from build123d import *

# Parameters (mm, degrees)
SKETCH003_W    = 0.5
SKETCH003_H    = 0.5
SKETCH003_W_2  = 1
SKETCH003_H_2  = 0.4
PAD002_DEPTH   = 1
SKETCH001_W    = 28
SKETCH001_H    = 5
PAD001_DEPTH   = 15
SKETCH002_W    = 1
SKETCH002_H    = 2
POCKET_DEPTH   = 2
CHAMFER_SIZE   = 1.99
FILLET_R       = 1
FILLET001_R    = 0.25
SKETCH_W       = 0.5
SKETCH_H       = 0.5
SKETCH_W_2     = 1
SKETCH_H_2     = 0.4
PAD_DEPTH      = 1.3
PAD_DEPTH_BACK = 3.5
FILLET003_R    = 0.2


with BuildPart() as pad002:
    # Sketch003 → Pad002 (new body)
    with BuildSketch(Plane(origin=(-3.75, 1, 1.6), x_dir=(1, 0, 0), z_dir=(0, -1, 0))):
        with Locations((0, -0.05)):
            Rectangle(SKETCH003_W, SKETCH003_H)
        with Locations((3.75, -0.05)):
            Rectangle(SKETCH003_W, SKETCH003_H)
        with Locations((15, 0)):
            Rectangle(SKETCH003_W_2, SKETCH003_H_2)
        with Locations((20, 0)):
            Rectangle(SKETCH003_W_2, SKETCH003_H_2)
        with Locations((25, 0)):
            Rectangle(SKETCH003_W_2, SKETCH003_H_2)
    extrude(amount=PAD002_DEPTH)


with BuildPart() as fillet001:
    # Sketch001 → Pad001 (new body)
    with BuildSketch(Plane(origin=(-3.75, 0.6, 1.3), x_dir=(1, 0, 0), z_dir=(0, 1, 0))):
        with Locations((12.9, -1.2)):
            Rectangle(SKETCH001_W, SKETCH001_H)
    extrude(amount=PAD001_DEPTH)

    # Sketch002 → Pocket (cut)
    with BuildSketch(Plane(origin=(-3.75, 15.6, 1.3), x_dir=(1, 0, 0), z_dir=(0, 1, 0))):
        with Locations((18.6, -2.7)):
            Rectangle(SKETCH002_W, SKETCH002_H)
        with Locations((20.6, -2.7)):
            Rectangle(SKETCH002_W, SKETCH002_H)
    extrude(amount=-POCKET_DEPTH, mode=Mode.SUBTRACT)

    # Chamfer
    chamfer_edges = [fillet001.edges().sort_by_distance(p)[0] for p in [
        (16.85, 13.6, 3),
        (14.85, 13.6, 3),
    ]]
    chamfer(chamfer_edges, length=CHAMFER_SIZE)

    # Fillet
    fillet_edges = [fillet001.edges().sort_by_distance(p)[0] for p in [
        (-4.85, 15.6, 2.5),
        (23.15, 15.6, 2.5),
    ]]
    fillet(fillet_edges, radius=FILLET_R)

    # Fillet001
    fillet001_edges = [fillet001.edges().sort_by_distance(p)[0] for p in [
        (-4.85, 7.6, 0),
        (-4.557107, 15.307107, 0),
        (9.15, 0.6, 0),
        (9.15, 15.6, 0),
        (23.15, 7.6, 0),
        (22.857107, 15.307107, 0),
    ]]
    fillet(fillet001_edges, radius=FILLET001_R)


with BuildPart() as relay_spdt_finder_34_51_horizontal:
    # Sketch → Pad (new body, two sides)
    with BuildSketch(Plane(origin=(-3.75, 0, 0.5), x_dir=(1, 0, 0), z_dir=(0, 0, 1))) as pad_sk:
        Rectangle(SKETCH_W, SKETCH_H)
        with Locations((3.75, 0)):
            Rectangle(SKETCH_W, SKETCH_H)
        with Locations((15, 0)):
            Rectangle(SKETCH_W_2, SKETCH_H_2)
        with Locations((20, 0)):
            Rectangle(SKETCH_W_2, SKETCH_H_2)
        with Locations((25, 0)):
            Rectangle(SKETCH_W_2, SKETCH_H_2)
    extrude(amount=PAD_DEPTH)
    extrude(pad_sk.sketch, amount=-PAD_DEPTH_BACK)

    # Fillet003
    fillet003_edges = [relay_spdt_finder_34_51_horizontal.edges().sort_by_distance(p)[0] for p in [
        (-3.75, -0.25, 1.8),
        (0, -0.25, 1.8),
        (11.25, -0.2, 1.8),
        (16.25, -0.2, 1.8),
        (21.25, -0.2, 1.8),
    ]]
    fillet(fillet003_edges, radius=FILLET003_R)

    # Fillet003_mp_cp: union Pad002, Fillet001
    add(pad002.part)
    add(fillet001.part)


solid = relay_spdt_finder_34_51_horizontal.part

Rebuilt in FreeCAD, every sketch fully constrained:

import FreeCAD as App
import Part
import Sketcher


def edges_at(feature, points):
    """Names of the edges that pass closest to the given points."""
    edges = feature.Shape.Edges
    near = lambda p: min(range(len(edges)), key=lambda i: edges[i].distToShape(Part.Vertex(*p))[0])
    return sorted({f"Edge{near(p) + 1}" for p in points})

doc = App.newDocument("Part")
body = doc.addObject("PartDesign::Body", "Body")
body.AllowCompound = True

# Sketch on XZ plane
sketch1 = body.newObject("Sketcher::SketchObject", "Sketch")
sketch1.AttachmentSupport = (doc.getObject("XZ_Plane"), [""])
sketch1.MapMode = "FlatFace"
sketch1.AttachmentOffset = App.Placement(App.Vector(0, 0, -1), App.Rotation())
sketch1.addGeometry([
    Part.LineSegment(App.Vector(-4, 1.8, 0), App.Vector(-4, 1.3, 0)),  # 0
    Part.LineSegment(App.Vector(-4, 1.3, 0), App.Vector(-3.5, 1.3, 0)),  # 1
    Part.LineSegment(App.Vector(-3.5, 1.3, 0), App.Vector(-3.5, 1.8, 0)),  # 2
    Part.LineSegment(App.Vector(-3.5, 1.8, 0), App.Vector(-4, 1.8, 0)),  # 3
    Part.LineSegment(App.Vector(-0.25, 1.8, 0), App.Vector(-0.25, 1.3, 0)),  # 4
    Part.LineSegment(App.Vector(-0.25, 1.3, 0), App.Vector(0.25, 1.3, 0)),  # 5
    Part.LineSegment(App.Vector(0.25, 1.3, 0), App.Vector(0.25, 1.8, 0)),  # 6
    Part.LineSegment(App.Vector(0.25, 1.8, 0), App.Vector(-0.25, 1.8, 0)),  # 7
    Part.LineSegment(App.Vector(10.75, 1.8, 0), App.Vector(10.75, 1.4, 0)),  # 8
    Part.LineSegment(App.Vector(10.75, 1.4, 0), App.Vector(11.75, 1.4, 0)),  # 9
    Part.LineSegment(App.Vector(11.75, 1.4, 0), App.Vector(11.75, 1.8, 0)),  # 10
    Part.LineSegment(App.Vector(11.75, 1.8, 0), App.Vector(10.75, 1.8, 0)),  # 11
    Part.LineSegment(App.Vector(15.75, 1.8, 0), App.Vector(15.75, 1.4, 0)),  # 12
    Part.LineSegment(App.Vector(15.75, 1.4, 0), App.Vector(16.75, 1.4, 0)),  # 13
    Part.LineSegment(App.Vector(16.75, 1.4, 0), App.Vector(16.75, 1.8, 0)),  # 14
    Part.LineSegment(App.Vector(16.75, 1.8, 0), App.Vector(15.75, 1.8, 0)),  # 15
    Part.LineSegment(App.Vector(20.75, 1.8, 0), App.Vector(20.75, 1.4, 0)),  # 16
    Part.LineSegment(App.Vector(20.75, 1.4, 0), App.Vector(21.75, 1.4, 0)),  # 17
    Part.LineSegment(App.Vector(21.75, 1.4, 0), App.Vector(21.75, 1.8, 0)),  # 18
    Part.LineSegment(App.Vector(21.75, 1.8, 0), App.Vector(20.75, 1.8, 0)),  # 19
], False)
sketch1.addConstraint([
    Sketcher.Constraint("Coincident", 0, 2, 1, 1),
    Sketcher.Constraint("Coincident", 1, 2, 2, 1),
    Sketcher.Constraint("Coincident", 2, 2, 3, 1),
    Sketcher.Constraint("Coincident", 3, 2, 0, 1),
    Sketcher.Constraint("Coincident", 4, 2, 5, 1),
    Sketcher.Constraint("Coincident", 5, 2, 6, 1),
    Sketcher.Constraint("Coincident", 6, 2, 7, 1),
    Sketcher.Constraint("Coincident", 7, 2, 4, 1),
    Sketcher.Constraint("Coincident", 8, 2, 9, 1),
    Sketcher.Constraint("Coincident", 9, 2, 10, 1),
    Sketcher.Constraint("Coincident", 10, 2, 11, 1),
    Sketcher.Constraint("Coincident", 11, 2, 8, 1),
    Sketcher.Constraint("Coincident", 12, 2, 13, 1),
    Sketcher.Constraint("Coincident", 13, 2, 14, 1),
    Sketcher.Constraint("Coincident", 14, 2, 15, 1),
    Sketcher.Constraint("Coincident", 15, 2, 12, 1),
    Sketcher.Constraint("Coincident", 16, 2, 17, 1),
    Sketcher.Constraint("Coincident", 17, 2, 18, 1),
    Sketcher.Constraint("Coincident", 18, 2, 19, 1),
    Sketcher.Constraint("Coincident", 19, 2, 16, 1),
    Sketcher.Constraint("Vertical", 0),
    Sketcher.Constraint("Horizontal", 1),
    Sketcher.Constraint("Vertical", 2),
    Sketcher.Constraint("Horizontal", 3),
    Sketcher.Constraint("Vertical", 4),
    Sketcher.Constraint("Horizontal", 5),
    Sketcher.Constraint("Vertical", 6),
    Sketcher.Constraint("Horizontal", 7),
    Sketcher.Constraint("Vertical", 8),
    Sketcher.Constraint("Horizontal", 9),
    Sketcher.Constraint("Vertical", 10),
    Sketcher.Constraint("Horizontal", 11),
    Sketcher.Constraint("Vertical", 12),
    Sketcher.Constraint("Horizontal", 13),
    Sketcher.Constraint("Vertical", 14),
    Sketcher.Constraint("Horizontal", 15),
    Sketcher.Constraint("Vertical", 16),
    Sketcher.Constraint("Horizontal", 17),
    Sketcher.Constraint("Vertical", 18),
    Sketcher.Constraint("Horizontal", 19),
    Sketcher.Constraint("Horizontal", 1, 2, 4, 2),
    Sketcher.Constraint("Horizontal", 3, 2, 6, 2),
    Sketcher.Constraint("Horizontal", 7, 2, 10, 2),
    Sketcher.Constraint("Horizontal", 9, 2, 12, 2),
    Sketcher.Constraint("Horizontal", 11, 2, 14, 2),
    Sketcher.Constraint("Horizontal", 13, 2, 16, 2),
    Sketcher.Constraint("Horizontal", 15, 2, 18, 2),
    Sketcher.Constraint("Equal", 3, 5),
    Sketcher.Constraint("Equal", 11, 13),
    Sketcher.Constraint("Equal", 15, 17),
    Sketcher.Constraint("Equal", 7, 0),
    Sketcher.Constraint("DistanceX", 9, 1, 9, 2, 1.0),
    Sketcher.Constraint("DistanceX", 1, 1, 1, 2, 0.5),
    Sketcher.Constraint("DistanceY", 8, 2, 8, 1, 0.4),
    Sketcher.Constraint("DistanceX", 0, 2, -1, 1, 4.0),
    Sketcher.Constraint("DistanceX", 4, 2, 8, 2, 11.0),
    Sketcher.Constraint("DistanceX", 9, 2, 12, 2, 4.0),
    Sketcher.Constraint("DistanceX", 13, 2, 16, 2, 4.0),
    Sketcher.Constraint("DistanceY", -1, 1, 0, 2, 1.3),
    Sketcher.Constraint("DistanceX", 4, 2, -1, 1, 0.25),
])
pad1 = body.newObject("PartDesign::Pad", "Pad")
pad1.Profile = sketch1
pad1.Length = 1
body2 = doc.addObject("PartDesign::Body", "Body001")

# Sketch on XZ plane
sketch2 = body2.newObject("Sketcher::SketchObject", "Sketch001")
sketch2.AttachmentSupport = (doc.getObject("XZ_Plane001"), [""])
sketch2.MapMode = "FlatFace"
sketch2.AttachmentOffset = App.Placement(App.Vector(0, 0, -0.6), App.Rotation())
sketch2.addGeometry([
    Part.LineSegment(App.Vector(-5, 0, 0), App.Vector(-5, 5, 0)),
    Part.LineSegment(App.Vector(-5, 5, 0), App.Vector(23, 5, 0)),
    Part.LineSegment(App.Vector(23, 5, 0), App.Vector(23, 0, 0)),
    Part.LineSegment(App.Vector(23, 0, 0), App.Vector(-5, 0, 0)),
], False)
sketch2.addConstraint([
    Sketcher.Constraint("Coincident", 0, 2, 1, 1),
    Sketcher.Constraint("Coincident", 1, 2, 2, 1),
    Sketcher.Constraint("Coincident", 2, 2, 3, 1),
    Sketcher.Constraint("Coincident", 3, 2, 0, 1),
    Sketcher.Constraint("Vertical", 0),
    Sketcher.Constraint("Horizontal", 1),
    Sketcher.Constraint("Vertical", 2),
    Sketcher.Constraint("Horizontal", 3),
    Sketcher.Constraint("PointOnObject", 2, 2, -1),
    Sketcher.Constraint("DistanceX", 1, 1, 1, 2, 28.0),
    Sketcher.Constraint("DistanceY", 0, 1, 0, 2, 5.0),
    Sketcher.Constraint("DistanceX", 0, 2, -1, 1, 4.85),
])
pad2 = body2.newObject("PartDesign::Pad", "Pad001")
pad2.Profile = sketch2
pad2.Length = 15
pad2.Reversed = True

# Sketch on XZ plane
sketch3 = body2.newObject("Sketcher::SketchObject", "Sketch002")
sketch3.AttachmentSupport = (doc.getObject("XZ_Plane001"), [""])
sketch3.MapMode = "FlatFace"
sketch3.AttachmentOffset = App.Placement(App.Vector(0, 0, -15.6), App.Rotation())
sketch3.addGeometry([
    Part.LineSegment(App.Vector(14.3, 3, 0), App.Vector(14.3, 5, 0)),  # 0
    Part.LineSegment(App.Vector(14.3, 5, 0), App.Vector(15.3, 5, 0)),  # 1
    Part.LineSegment(App.Vector(15.3, 5, 0), App.Vector(15.3, 3, 0)),  # 2
    Part.LineSegment(App.Vector(15.3, 3, 0), App.Vector(14.3, 3, 0)),  # 3
    Part.LineSegment(App.Vector(16.4, 3, 0), App.Vector(16.4, 5, 0)),  # 4
    Part.LineSegment(App.Vector(16.4, 5, 0), App.Vector(17.4, 5, 0)),  # 5
    Part.LineSegment(App.Vector(17.4, 5, 0), App.Vector(17.4, 3, 0)),  # 6
    Part.LineSegment(App.Vector(17.4, 3, 0), App.Vector(16.4, 3, 0)),  # 7
], False)
sketch3.addConstraint([
    Sketcher.Constraint("Coincident", 0, 2, 1, 1),
    Sketcher.Constraint("Coincident", 1, 2, 2, 1),
    Sketcher.Constraint("Coincident", 2, 2, 3, 1),
    Sketcher.Constraint("Coincident", 3, 2, 0, 1),
    Sketcher.Constraint("Coincident", 4, 2, 5, 1),
    Sketcher.Constraint("Coincident", 5, 2, 6, 1),
    Sketcher.Constraint("Coincident", 6, 2, 7, 1),
    Sketcher.Constraint("Coincident", 7, 2, 4, 1),
    Sketcher.Constraint("Vertical", 0),
    Sketcher.Constraint("Horizontal", 1),
    Sketcher.Constraint("Vertical", 2),
    Sketcher.Constraint("Horizontal", 3),
    Sketcher.Constraint("Vertical", 4),
    Sketcher.Constraint("Horizontal", 5),
    Sketcher.Constraint("Vertical", 6),
    Sketcher.Constraint("Horizontal", 7),
    Sketcher.Constraint("Horizontal", 1, 2, 4, 2),
    Sketcher.Constraint("Horizontal", 3, 2, 6, 2),
    Sketcher.Constraint("Equal", 3, 5),
    Sketcher.Constraint("DistanceX", 1, 1, 1, 2, 1.0),
    Sketcher.Constraint("DistanceY", 0, 1, 0, 2, 2.0),
    Sketcher.Constraint("DistanceY", -1, 1, 0, 2, 5.0),
    Sketcher.Constraint("DistanceX", 1, 2, 4, 2, 1.0),
    Sketcher.Constraint("DistanceX", -1, 1, 0, 2, 14.35),
])
pocket1 = body2.newObject("PartDesign::Pocket", "Pocket")
pocket1.Profile = sketch3
pocket1.Length = 2
pocket1.Reversed = True
doc.recompute()

chamfer = body2.newObject("PartDesign::Chamfer", "Chamfer")
chamfer.Base = (pocket1, edges_at(pocket1, [(16.85, 13.6, 3), (14.85, 13.6, 3)]))
chamfer.Size = 1.99
doc.recompute()

fillet = body2.newObject("PartDesign::Fillet", "Fillet")
fillet.Base = (chamfer, edges_at(chamfer, [(-4.85, 15.6, 2.5), (23.15, 15.6, 2.5)]))
fillet.Radius = 1
doc.recompute()

fillet2 = body2.newObject("PartDesign::Fillet", "Fillet001")
fillet2.Base = (fillet, edges_at(fillet, [
    (-4.85, 7.6, 0),
    (-4.557, 15.307, 0),
    (9.15, 0.6, 0),
    (9.15, 15.6, 0),
    (23.15, 7.6, 0),
    (22.857, 15.307, 0),
]))
fillet2.Radius = 0.25
body3 = doc.addObject("PartDesign::Body", "Body002")
body3.AllowCompound = True

# Sketch on XY plane
sketch4 = body3.newObject("Sketcher::SketchObject", "Sketch003")
sketch4.AttachmentSupport = (doc.getObject("XY_Plane002"), [""])
sketch4.MapMode = "FlatFace"
sketch4.AttachmentOffset = App.Placement(App.Vector(0, 0, 0.5), App.Rotation())
sketch4.addGeometry([
    Part.LineSegment(App.Vector(-4, 0.25, 0), App.Vector(-4, -0.25, 0)),  # 0
    Part.LineSegment(App.Vector(-4, -0.25, 0), App.Vector(-3.5, -0.25, 0)),  # 1
    Part.LineSegment(App.Vector(-3.5, -0.25, 0), App.Vector(-3.5, 0.25, 0)),  # 2
    Part.LineSegment(App.Vector(-3.5, 0.25, 0), App.Vector(-4, 0.25, 0)),  # 3
    Part.LineSegment(App.Vector(-0.25, 0.25, 0), App.Vector(-0.25, -0.25, 0)),  # 4
    Part.LineSegment(App.Vector(-0.25, -0.25, 0), App.Vector(0.25, -0.25, 0)),  # 5
    Part.LineSegment(App.Vector(0.25, -0.25, 0), App.Vector(0.25, 0.25, 0)),  # 6
    Part.LineSegment(App.Vector(0.25, 0.25, 0), App.Vector(-0.25, 0.25, 0)),  # 7
    Part.LineSegment(App.Vector(10.75, 0.2, 0), App.Vector(10.75, -0.2, 0)),  # 8
    Part.LineSegment(App.Vector(10.75, -0.2, 0), App.Vector(11.75, -0.2, 0)),  # 9
    Part.LineSegment(App.Vector(11.75, -0.2, 0), App.Vector(11.75, 0.2, 0)),  # 10
    Part.LineSegment(App.Vector(11.75, 0.2, 0), App.Vector(10.75, 0.2, 0)),  # 11
    Part.LineSegment(App.Vector(15.75, 0.2, 0), App.Vector(15.75, -0.2, 0)),  # 12
    Part.LineSegment(App.Vector(15.75, -0.2, 0), App.Vector(16.75, -0.2, 0)),  # 13
    Part.LineSegment(App.Vector(16.75, -0.2, 0), App.Vector(16.75, 0.2, 0)),  # 14
    Part.LineSegment(App.Vector(16.75, 0.2, 0), App.Vector(15.75, 0.2, 0)),  # 15
    Part.LineSegment(App.Vector(20.75, 0.2, 0), App.Vector(20.75, -0.2, 0)),  # 16
    Part.LineSegment(App.Vector(20.75, -0.2, 0), App.Vector(21.75, -0.2, 0)),  # 17
    Part.LineSegment(App.Vector(21.75, -0.2, 0), App.Vector(21.75, 0.2, 0)),  # 18
    Part.LineSegment(App.Vector(21.75, 0.2, 0), App.Vector(20.75, 0.2, 0)),  # 19
], False)
sketch4.addConstraint([
    Sketcher.Constraint("Coincident", 0, 2, 1, 1),
    Sketcher.Constraint("Coincident", 1, 2, 2, 1),
    Sketcher.Constraint("Coincident", 2, 2, 3, 1),
    Sketcher.Constraint("Coincident", 3, 2, 0, 1),
    Sketcher.Constraint("Coincident", 4, 2, 5, 1),
    Sketcher.Constraint("Coincident", 5, 2, 6, 1),
    Sketcher.Constraint("Coincident", 6, 2, 7, 1),
    Sketcher.Constraint("Coincident", 7, 2, 4, 1),
    Sketcher.Constraint("Coincident", 8, 2, 9, 1),
    Sketcher.Constraint("Coincident", 9, 2, 10, 1),
    Sketcher.Constraint("Coincident", 10, 2, 11, 1),
    Sketcher.Constraint("Coincident", 11, 2, 8, 1),
    Sketcher.Constraint("Coincident", 12, 2, 13, 1),
    Sketcher.Constraint("Coincident", 13, 2, 14, 1),
    Sketcher.Constraint("Coincident", 14, 2, 15, 1),
    Sketcher.Constraint("Coincident", 15, 2, 12, 1),
    Sketcher.Constraint("Coincident", 16, 2, 17, 1),
    Sketcher.Constraint("Coincident", 17, 2, 18, 1),
    Sketcher.Constraint("Coincident", 18, 2, 19, 1),
    Sketcher.Constraint("Coincident", 19, 2, 16, 1),
    Sketcher.Constraint("Vertical", 0),
    Sketcher.Constraint("Horizontal", 1),
    Sketcher.Constraint("Vertical", 2),
    Sketcher.Constraint("Horizontal", 3),
    Sketcher.Constraint("Vertical", 4),
    Sketcher.Constraint("Horizontal", 5),
    Sketcher.Constraint("Vertical", 6),
    Sketcher.Constraint("Horizontal", 7),
    Sketcher.Constraint("Vertical", 8),
    Sketcher.Constraint("Horizontal", 9),
    Sketcher.Constraint("Vertical", 10),
    Sketcher.Constraint("Horizontal", 11),
    Sketcher.Constraint("Vertical", 12),
    Sketcher.Constraint("Horizontal", 13),
    Sketcher.Constraint("Vertical", 14),
    Sketcher.Constraint("Horizontal", 15),
    Sketcher.Constraint("Vertical", 16),
    Sketcher.Constraint("Horizontal", 17),
    Sketcher.Constraint("Vertical", 18),
    Sketcher.Constraint("Horizontal", 19),
    Sketcher.Constraint("Symmetric", 4, 2, 6, 2, -1, 1),
    Sketcher.Constraint("Horizontal", 1, 2, 4, 2),
    Sketcher.Constraint("Horizontal", 3, 2, 6, 2),
    Sketcher.Constraint("Horizontal", 9, 2, 12, 2),
    Sketcher.Constraint("Horizontal", 11, 2, 14, 2),
    Sketcher.Constraint("Horizontal", 13, 2, 16, 2),
    Sketcher.Constraint("Horizontal", 15, 2, 18, 2),
    Sketcher.Constraint("Equal", 3, 5),
    Sketcher.Constraint("Equal", 11, 13),
    Sketcher.Constraint("Equal", 15, 17),
    Sketcher.Constraint("Equal", 7, 0),
    Sketcher.Constraint("DistanceX", 9, 1, 9, 2, 1.0),
    Sketcher.Constraint("DistanceX", 1, 1, 1, 2, 0.5),
    Sketcher.Constraint("DistanceY", 8, 2, 8, 1, 0.4),
    Sketcher.Constraint("DistanceX", 0, 2, -1, 1, 4.0),
    Sketcher.Constraint("DistanceX", 4, 2, 8, 2, 11.0),
    Sketcher.Constraint("DistanceX", 9, 2, 12, 2, 4.0),
    Sketcher.Constraint("DistanceX", 13, 2, 16, 2, 4.0),
    Sketcher.Constraint("DistanceY", 8, 2, -1, 1, 0.2),
])
pad3 = body3.newObject("PartDesign::Pad", "Pad002")
pad3.Profile = sketch4
pad3.Type = "TwoLengths"
pad3.Length = 1.3
pad3.Length2 = 3.5
doc.recompute()

fillet3 = body3.newObject("PartDesign::Fillet", "Fillet002")
fillet3.Base = (pad3, edges_at(pad3, [
    (-3.75, -0.25, 1.8),
    (0, -0.25, 1.8),
    (11.25, -0.2, 1.8),
    (16.25, -0.2, 1.8),
    (21.25, -0.2, 1.8),
]))
fillet3.Radius = 0.2
doc.recompute()

boolean = body3.newObject("PartDesign::Boolean", "Boolean")
boolean.Type = "Fuse"
boolean.addObjects([body])
doc.recompute()

boolean2 = body3.newObject("PartDesign::Boolean", "Boolean001")
boolean2.Type = "Fuse"
boolean2.addObjects([body2])

doc.recompute()
